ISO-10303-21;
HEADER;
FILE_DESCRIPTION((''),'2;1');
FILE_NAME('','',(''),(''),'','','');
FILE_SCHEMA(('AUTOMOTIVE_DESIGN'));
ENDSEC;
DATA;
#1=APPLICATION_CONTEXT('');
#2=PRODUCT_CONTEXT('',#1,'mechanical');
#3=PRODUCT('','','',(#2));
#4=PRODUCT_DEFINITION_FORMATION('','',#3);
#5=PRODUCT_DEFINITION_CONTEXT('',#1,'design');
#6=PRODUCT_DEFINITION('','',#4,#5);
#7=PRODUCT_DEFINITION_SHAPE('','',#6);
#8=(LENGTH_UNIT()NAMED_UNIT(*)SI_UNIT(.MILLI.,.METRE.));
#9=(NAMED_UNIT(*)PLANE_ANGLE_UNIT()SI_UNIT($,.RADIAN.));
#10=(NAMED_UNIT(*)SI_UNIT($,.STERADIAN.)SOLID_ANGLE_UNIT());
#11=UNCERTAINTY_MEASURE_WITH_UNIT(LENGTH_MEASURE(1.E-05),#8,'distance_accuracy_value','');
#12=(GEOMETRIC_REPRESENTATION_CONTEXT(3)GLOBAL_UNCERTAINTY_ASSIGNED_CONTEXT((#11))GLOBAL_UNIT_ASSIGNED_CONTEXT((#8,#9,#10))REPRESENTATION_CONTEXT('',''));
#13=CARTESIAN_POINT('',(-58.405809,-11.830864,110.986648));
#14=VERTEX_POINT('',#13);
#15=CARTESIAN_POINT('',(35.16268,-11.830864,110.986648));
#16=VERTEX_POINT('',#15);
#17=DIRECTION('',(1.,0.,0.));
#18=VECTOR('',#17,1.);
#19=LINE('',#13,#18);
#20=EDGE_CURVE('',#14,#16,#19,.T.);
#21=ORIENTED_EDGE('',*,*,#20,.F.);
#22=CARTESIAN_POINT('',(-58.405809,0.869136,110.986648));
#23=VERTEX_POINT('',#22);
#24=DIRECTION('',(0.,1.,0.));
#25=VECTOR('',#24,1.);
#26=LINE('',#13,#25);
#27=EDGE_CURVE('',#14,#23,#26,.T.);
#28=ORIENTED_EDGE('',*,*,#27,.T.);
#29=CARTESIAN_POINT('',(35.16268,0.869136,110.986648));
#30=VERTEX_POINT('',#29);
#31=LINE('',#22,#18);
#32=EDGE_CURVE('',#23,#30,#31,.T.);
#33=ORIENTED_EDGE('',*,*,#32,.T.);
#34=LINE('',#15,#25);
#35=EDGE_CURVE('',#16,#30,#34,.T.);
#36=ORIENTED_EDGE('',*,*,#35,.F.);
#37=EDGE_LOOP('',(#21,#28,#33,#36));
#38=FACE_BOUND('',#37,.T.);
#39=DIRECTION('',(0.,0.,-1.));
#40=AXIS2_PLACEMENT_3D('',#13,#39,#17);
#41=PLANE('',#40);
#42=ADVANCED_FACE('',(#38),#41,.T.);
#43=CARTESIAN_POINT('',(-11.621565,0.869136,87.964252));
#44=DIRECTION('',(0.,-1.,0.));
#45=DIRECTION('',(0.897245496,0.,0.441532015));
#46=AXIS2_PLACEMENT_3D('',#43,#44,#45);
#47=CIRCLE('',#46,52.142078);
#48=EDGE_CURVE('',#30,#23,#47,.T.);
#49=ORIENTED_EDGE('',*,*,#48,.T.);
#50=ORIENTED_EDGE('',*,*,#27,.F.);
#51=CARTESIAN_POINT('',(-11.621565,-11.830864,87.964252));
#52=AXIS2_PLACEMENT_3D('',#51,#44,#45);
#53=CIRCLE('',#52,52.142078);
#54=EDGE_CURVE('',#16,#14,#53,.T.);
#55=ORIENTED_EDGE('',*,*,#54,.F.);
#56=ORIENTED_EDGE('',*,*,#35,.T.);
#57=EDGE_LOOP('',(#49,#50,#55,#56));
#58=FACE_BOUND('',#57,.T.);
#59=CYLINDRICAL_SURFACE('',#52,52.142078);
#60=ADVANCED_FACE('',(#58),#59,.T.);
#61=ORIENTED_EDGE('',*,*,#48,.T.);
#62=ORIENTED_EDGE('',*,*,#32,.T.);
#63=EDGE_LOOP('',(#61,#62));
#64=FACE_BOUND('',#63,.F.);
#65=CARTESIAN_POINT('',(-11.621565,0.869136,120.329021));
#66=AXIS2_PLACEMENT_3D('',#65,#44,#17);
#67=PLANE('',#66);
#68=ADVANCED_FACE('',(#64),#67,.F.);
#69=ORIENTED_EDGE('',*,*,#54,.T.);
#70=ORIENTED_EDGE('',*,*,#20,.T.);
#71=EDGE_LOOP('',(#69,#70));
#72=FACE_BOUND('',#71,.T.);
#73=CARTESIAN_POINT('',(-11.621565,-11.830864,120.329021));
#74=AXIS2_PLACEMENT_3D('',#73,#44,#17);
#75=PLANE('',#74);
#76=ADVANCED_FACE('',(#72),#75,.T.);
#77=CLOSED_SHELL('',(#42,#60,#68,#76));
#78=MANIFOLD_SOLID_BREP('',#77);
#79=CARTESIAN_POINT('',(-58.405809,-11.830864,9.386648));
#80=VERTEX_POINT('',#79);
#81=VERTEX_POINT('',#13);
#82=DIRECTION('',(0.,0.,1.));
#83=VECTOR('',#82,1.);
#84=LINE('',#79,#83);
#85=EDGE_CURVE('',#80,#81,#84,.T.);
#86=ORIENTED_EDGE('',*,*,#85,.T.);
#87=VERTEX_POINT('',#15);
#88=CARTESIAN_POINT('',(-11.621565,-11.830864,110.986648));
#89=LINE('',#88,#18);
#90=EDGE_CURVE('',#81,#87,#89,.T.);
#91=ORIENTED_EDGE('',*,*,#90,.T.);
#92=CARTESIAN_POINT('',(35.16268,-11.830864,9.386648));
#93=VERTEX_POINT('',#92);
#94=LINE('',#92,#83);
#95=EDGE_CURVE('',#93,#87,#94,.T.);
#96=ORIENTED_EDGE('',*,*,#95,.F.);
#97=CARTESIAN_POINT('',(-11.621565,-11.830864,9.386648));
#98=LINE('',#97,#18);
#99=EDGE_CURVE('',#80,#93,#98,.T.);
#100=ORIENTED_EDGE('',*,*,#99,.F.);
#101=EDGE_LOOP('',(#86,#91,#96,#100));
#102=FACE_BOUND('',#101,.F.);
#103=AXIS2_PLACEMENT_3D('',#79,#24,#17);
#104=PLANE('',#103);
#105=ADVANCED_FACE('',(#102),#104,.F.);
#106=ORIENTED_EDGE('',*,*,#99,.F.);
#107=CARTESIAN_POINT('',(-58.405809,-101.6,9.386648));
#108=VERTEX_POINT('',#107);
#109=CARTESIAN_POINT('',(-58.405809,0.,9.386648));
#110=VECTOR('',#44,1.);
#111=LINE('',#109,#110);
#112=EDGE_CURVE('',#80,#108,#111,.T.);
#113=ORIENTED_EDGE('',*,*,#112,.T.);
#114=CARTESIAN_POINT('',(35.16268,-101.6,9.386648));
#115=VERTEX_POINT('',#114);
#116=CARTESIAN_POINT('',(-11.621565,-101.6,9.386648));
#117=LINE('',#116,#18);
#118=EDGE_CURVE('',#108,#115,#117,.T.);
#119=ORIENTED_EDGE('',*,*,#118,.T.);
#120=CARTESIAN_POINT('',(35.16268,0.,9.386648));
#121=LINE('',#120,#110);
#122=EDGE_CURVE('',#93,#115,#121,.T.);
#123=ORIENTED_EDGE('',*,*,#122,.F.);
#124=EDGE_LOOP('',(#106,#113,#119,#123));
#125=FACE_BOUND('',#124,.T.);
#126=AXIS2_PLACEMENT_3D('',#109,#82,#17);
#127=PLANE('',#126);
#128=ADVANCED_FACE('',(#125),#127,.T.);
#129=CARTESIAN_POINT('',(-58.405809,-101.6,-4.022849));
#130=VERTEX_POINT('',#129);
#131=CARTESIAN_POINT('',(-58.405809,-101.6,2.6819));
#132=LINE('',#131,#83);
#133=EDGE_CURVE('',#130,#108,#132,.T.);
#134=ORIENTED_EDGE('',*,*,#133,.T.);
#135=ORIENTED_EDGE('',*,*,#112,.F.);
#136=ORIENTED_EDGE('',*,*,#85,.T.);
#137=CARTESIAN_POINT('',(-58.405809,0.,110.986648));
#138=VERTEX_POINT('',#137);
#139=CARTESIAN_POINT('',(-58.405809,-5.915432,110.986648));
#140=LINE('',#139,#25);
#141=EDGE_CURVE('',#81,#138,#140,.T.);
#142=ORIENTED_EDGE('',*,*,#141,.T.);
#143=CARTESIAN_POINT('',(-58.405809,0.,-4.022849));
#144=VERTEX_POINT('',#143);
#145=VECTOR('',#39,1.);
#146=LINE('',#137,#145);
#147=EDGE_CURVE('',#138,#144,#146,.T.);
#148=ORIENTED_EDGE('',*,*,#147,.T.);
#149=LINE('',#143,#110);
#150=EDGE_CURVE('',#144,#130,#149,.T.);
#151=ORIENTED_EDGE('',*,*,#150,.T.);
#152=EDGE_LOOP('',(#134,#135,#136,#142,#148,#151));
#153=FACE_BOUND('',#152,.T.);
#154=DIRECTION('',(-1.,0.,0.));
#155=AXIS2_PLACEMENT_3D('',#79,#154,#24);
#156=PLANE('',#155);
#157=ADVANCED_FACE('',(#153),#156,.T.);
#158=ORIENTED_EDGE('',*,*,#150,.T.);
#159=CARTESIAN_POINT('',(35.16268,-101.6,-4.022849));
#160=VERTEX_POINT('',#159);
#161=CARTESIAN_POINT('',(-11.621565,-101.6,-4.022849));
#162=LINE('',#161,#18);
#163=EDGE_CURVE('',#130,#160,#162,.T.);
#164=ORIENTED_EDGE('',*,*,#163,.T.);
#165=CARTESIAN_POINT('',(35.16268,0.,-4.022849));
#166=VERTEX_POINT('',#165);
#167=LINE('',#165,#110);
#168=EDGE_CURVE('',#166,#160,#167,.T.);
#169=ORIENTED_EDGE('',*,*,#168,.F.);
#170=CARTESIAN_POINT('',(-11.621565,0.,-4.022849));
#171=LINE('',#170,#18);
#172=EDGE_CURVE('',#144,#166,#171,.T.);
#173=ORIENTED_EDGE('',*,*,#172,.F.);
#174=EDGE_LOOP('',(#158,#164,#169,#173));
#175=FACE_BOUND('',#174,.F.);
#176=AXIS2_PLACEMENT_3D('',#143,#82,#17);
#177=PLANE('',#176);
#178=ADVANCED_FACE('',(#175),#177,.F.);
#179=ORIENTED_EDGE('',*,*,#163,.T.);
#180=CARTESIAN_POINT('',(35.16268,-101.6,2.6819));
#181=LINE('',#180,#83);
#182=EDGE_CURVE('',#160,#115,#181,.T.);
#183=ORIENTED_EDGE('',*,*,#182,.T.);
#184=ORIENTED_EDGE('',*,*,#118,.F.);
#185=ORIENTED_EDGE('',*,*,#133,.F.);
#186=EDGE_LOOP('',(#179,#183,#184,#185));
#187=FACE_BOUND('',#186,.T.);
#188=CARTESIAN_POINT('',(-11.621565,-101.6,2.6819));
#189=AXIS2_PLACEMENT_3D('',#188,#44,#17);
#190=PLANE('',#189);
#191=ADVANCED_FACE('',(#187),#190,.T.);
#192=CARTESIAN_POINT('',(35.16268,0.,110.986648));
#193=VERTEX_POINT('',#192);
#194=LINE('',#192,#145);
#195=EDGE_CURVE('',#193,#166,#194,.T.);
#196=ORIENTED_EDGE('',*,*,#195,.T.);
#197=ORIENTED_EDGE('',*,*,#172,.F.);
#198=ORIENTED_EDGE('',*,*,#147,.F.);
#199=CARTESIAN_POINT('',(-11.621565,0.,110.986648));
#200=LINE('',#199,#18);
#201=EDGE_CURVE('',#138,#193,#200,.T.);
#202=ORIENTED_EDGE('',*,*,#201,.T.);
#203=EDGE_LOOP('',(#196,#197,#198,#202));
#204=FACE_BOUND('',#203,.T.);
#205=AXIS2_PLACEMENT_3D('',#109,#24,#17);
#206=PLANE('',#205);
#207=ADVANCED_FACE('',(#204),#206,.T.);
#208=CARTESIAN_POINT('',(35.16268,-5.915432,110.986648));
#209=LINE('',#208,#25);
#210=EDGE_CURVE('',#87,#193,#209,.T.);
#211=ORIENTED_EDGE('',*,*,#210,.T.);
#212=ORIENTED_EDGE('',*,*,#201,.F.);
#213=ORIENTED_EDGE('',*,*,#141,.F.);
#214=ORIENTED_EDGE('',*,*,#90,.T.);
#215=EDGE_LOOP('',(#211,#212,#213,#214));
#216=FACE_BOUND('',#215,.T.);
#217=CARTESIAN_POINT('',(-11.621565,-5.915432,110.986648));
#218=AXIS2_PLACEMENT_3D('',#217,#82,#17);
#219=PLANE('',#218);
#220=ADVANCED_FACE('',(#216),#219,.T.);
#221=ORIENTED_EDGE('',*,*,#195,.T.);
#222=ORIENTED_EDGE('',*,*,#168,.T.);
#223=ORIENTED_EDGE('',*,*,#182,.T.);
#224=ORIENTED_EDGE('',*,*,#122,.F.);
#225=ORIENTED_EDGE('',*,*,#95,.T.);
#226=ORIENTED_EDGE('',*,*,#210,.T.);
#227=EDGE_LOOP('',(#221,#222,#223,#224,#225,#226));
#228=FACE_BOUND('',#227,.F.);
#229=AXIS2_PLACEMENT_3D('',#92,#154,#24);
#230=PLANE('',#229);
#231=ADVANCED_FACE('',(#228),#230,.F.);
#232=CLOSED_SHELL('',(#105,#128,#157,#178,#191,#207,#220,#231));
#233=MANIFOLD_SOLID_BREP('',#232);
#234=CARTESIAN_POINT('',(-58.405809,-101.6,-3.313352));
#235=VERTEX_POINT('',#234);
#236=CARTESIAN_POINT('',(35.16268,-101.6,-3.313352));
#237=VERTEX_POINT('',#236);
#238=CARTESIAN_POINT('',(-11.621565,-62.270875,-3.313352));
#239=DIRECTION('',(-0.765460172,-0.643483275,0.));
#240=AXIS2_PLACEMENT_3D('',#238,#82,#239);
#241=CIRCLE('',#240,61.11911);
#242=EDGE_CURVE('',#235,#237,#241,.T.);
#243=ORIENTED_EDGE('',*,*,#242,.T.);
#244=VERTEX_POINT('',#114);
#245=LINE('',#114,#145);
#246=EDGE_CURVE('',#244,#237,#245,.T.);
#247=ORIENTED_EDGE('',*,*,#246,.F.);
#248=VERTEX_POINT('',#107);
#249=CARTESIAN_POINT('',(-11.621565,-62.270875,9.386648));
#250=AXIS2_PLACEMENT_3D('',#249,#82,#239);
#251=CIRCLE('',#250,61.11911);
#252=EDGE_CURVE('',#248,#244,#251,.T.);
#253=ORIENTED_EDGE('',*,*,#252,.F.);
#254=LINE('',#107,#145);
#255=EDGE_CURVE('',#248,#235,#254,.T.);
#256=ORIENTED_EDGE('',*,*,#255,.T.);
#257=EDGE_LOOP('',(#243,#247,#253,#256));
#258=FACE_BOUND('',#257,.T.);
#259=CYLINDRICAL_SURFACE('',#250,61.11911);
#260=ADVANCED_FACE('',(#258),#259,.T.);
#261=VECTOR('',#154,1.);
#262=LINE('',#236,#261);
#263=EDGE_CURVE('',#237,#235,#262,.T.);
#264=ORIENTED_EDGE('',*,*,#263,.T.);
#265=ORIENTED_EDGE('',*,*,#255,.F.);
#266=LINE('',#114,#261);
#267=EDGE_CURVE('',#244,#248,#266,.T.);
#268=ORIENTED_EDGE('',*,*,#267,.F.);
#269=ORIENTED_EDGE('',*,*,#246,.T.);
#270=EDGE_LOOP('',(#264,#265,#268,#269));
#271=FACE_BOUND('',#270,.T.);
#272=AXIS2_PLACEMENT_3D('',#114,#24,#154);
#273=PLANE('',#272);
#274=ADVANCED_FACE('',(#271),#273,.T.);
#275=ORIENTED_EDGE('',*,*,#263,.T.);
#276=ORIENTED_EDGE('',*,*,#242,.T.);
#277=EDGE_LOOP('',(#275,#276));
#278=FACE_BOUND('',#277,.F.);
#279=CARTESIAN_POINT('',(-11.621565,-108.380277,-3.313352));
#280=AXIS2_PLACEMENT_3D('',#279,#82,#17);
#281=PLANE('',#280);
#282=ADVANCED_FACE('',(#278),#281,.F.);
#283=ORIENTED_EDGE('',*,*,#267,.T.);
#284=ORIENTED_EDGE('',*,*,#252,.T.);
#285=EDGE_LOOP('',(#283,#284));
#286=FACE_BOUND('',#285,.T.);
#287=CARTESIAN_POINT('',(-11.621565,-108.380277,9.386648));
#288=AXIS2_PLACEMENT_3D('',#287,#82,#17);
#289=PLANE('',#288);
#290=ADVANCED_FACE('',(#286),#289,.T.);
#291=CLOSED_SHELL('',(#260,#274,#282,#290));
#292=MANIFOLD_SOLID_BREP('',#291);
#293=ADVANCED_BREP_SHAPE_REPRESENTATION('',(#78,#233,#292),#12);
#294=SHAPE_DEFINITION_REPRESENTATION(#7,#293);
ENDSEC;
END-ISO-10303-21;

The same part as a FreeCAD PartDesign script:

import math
import FreeCAD as App
import Part
import Sketcher
Q = App.Units.Quantity


def add_polygon(sketch, points):
    """Adds a closed chain of lines whose ends are joined by coincident constraints."""
    first, n = sketch.GeometryCount, len(points)
    for a, b in zip(points, points[1:] + points[:1]):
        sketch.addGeometry(Part.LineSegment(App.Vector(*a, 0), App.Vector(*b, 0)), False)
    for i in range(n):
        sketch.addConstraint(Sketcher.Constraint("Coincident", first + i, 2, first + (i + 1) % n, 1))

doc = App.newDocument("Part")
body = doc.addObject("PartDesign::Body", "Body")

sketch1 = doc.addObject("Sketcher::SketchObject", "Sketch")
body.addObject(sketch1)
sketch1.AttachmentSupport = (doc.XZ_Plane, [""])
sketch1.MapMode = "FlatFace"
add_polygon(sketch1, [(-58, 9), (-58, -4), (35, -4), (35, 9)])
sketch1.addConstraint(Sketcher.Constraint("Vertical", 0))
sketch1.addConstraint(Sketcher.Constraint("Horizontal", 1))
sketch1.addConstraint(Sketcher.Constraint("Vertical", 2))
sketch1.addConstraint(Sketcher.Constraint("Horizontal", 3))
sketch1.addConstraint(Sketcher.Constraint("DistanceX", 1, 1, 1, 2, 93.568489))
sketch1.addConstraint(Sketcher.Constraint("DistanceY", 0, 2, 0, 1, 13.409498))
sketch1.addConstraint(Sketcher.Constraint("DistanceX", 0, 2, -1, 1, 58.405809))
sketch1.addConstraint(Sketcher.Constraint("DistanceY", 0, 2, -1, 1, 4.022849))
pad1 = doc.addObject("PartDesign::Pad", "Pad")
body.addObject(pad1)
pad1.Profile = sketch1
pad1.Length = Q("4 in")

sketch2 = doc.addObject("Sketcher::SketchObject", "Sketch001")
body.addObject(sketch2)
sketch2.AttachmentSupport = (doc.XY_Plane, [""])
sketch2.MapMode = "FlatFace"
sketch2.AttachmentOffset = App.Placement(App.Vector(0, 0, 9.386648), App.Rotation())
add_polygon(sketch2, [(-58, 0), (-58, -12), (35, -12), (35, 0)])
sketch2.addConstraint(Sketcher.Constraint("Vertical", 0))
sketch2.addConstraint(Sketcher.Constraint("Horizontal", 1))
sketch2.addConstraint(Sketcher.Constraint("Vertical", 2))
sketch2.addConstraint(Sketcher.Constraint("Horizontal", 3))
sketch2.addConstraint(Sketcher.Constraint("PointOnObject", 2, 2, -1))
sketch2.addConstraint(Sketcher.Constraint("DistanceX", 1, 1, 1, 2, 93.568489))
sketch2.addConstraint(Sketcher.Constraint("DistanceY", 0, 2, 0, 1, 11.830864))
sketch2.addConstraint(Sketcher.Constraint("DistanceX", 0, 2, -1, 1, 58.405809))
pad2 = doc.addObject("PartDesign::Pad", "Pad001")
body.addObject(pad2)
pad2.Profile = sketch2
pad2.Length = Q("4 in")
body2 = doc.addObject("PartDesign::Body", "Body001")

sketch3 = doc.addObject("Sketcher::SketchObject", "Sketch002")
body2.addObject(sketch3)
sketch3.AttachmentSupport = (doc.getObject("XZ_Plane001"), [""])
sketch3.MapMode = "FlatFace"
sketch3.AttachmentOffset = App.Placement(App.Vector(0, 0, 11.830864), App.Rotation())
sketch3.addGeometry(Part.LineSegment(App.Vector(-58, 111, 0), App.Vector(35, 111, 0)), False)
sketch3.addGeometry(Part.ArcOfCircle(Part.Circle(App.Vector(-12, 88, 0), App.Vector(0, 0, 1), 52), math.radians(26), math.radians(154)), False)
sketch3.addConstraint(Sketcher.Constraint("Coincident", 0, 1, 1, 2))
sketch3.addConstraint(Sketcher.Constraint("Coincident", 1, 1, 0, 2))
sketch3.addConstraint(Sketcher.Constraint("Horizontal", 0))
sketch3.addConstraint(Sketcher.Constraint("Radius", 1, 52.142078))
sketch3.addConstraint(Sketcher.Constraint("DistanceX", 0, 1, 0, 2, 93.568489))
sketch3.addConstraint(Sketcher.Constraint("DistanceY", -1, 1, 1, 3, 87.964252))
sketch3.addConstraint(Sketcher.Constraint("DistanceX", 0, 1, -1, 1, 58.405809))
pad3 = doc.addObject("PartDesign::Pad", "Pad002")
body2.addObject(pad3)
pad3.Profile = sketch3
pad3.Length = Q("0.5 in")
pad3.Reversed = True
body3 = doc.addObject("PartDesign::Body", "Body002")

sketch4 = doc.addObject("Sketcher::SketchObject", "Sketch003")
body3.addObject(sketch4)
sketch4.AttachmentSupport = (doc.getObject("XY_Plane002"), [""])
sketch4.MapMode = "FlatFace"
sketch4.AttachmentOffset = App.Placement(App.Vector(0, 0, 9.386648), App.Rotation())
sketch4.addGeometry(Part.LineSegment(App.Vector(35, -102, 0), App.Vector(-58, -102, 0)), False)
sketch4.addGeometry(Part.ArcOfCircle(Part.Circle(App.Vector(-12, -62, 0), App.Vector(0, 0, 1), 61), math.radians(-140), math.radians(-40)), False)
sketch4.addConstraint(Sketcher.Constraint("Coincident", 0, 1, 1, 2))
sketch4.addConstraint(Sketcher.Constraint("Coincident", 1, 1, 0, 2))
sketch4.addConstraint(Sketcher.Constraint("Horizontal", 0))
sketch4.addConstraint(Sketcher.Constraint("DistanceY", 0, 1, -1, 1, Q("4 in")))
sketch4.addConstraint(Sketcher.Constraint("Radius", 1, 61.11911))
sketch4.addConstraint(Sketcher.Constraint("DistanceX", 0, 2, 0, 1, 93.568489))
sketch4.addConstraint(Sketcher.Constraint("DistanceX", -1, 1, 0, 1, 35.16268))
pad4 = doc.addObject("PartDesign::Pad", "Pad003")
body3.addObject(pad4)
pad4.Profile = sketch4
pad4.Length = Q("0.5 in")
pad4.Reversed = True

doc.recompute()
